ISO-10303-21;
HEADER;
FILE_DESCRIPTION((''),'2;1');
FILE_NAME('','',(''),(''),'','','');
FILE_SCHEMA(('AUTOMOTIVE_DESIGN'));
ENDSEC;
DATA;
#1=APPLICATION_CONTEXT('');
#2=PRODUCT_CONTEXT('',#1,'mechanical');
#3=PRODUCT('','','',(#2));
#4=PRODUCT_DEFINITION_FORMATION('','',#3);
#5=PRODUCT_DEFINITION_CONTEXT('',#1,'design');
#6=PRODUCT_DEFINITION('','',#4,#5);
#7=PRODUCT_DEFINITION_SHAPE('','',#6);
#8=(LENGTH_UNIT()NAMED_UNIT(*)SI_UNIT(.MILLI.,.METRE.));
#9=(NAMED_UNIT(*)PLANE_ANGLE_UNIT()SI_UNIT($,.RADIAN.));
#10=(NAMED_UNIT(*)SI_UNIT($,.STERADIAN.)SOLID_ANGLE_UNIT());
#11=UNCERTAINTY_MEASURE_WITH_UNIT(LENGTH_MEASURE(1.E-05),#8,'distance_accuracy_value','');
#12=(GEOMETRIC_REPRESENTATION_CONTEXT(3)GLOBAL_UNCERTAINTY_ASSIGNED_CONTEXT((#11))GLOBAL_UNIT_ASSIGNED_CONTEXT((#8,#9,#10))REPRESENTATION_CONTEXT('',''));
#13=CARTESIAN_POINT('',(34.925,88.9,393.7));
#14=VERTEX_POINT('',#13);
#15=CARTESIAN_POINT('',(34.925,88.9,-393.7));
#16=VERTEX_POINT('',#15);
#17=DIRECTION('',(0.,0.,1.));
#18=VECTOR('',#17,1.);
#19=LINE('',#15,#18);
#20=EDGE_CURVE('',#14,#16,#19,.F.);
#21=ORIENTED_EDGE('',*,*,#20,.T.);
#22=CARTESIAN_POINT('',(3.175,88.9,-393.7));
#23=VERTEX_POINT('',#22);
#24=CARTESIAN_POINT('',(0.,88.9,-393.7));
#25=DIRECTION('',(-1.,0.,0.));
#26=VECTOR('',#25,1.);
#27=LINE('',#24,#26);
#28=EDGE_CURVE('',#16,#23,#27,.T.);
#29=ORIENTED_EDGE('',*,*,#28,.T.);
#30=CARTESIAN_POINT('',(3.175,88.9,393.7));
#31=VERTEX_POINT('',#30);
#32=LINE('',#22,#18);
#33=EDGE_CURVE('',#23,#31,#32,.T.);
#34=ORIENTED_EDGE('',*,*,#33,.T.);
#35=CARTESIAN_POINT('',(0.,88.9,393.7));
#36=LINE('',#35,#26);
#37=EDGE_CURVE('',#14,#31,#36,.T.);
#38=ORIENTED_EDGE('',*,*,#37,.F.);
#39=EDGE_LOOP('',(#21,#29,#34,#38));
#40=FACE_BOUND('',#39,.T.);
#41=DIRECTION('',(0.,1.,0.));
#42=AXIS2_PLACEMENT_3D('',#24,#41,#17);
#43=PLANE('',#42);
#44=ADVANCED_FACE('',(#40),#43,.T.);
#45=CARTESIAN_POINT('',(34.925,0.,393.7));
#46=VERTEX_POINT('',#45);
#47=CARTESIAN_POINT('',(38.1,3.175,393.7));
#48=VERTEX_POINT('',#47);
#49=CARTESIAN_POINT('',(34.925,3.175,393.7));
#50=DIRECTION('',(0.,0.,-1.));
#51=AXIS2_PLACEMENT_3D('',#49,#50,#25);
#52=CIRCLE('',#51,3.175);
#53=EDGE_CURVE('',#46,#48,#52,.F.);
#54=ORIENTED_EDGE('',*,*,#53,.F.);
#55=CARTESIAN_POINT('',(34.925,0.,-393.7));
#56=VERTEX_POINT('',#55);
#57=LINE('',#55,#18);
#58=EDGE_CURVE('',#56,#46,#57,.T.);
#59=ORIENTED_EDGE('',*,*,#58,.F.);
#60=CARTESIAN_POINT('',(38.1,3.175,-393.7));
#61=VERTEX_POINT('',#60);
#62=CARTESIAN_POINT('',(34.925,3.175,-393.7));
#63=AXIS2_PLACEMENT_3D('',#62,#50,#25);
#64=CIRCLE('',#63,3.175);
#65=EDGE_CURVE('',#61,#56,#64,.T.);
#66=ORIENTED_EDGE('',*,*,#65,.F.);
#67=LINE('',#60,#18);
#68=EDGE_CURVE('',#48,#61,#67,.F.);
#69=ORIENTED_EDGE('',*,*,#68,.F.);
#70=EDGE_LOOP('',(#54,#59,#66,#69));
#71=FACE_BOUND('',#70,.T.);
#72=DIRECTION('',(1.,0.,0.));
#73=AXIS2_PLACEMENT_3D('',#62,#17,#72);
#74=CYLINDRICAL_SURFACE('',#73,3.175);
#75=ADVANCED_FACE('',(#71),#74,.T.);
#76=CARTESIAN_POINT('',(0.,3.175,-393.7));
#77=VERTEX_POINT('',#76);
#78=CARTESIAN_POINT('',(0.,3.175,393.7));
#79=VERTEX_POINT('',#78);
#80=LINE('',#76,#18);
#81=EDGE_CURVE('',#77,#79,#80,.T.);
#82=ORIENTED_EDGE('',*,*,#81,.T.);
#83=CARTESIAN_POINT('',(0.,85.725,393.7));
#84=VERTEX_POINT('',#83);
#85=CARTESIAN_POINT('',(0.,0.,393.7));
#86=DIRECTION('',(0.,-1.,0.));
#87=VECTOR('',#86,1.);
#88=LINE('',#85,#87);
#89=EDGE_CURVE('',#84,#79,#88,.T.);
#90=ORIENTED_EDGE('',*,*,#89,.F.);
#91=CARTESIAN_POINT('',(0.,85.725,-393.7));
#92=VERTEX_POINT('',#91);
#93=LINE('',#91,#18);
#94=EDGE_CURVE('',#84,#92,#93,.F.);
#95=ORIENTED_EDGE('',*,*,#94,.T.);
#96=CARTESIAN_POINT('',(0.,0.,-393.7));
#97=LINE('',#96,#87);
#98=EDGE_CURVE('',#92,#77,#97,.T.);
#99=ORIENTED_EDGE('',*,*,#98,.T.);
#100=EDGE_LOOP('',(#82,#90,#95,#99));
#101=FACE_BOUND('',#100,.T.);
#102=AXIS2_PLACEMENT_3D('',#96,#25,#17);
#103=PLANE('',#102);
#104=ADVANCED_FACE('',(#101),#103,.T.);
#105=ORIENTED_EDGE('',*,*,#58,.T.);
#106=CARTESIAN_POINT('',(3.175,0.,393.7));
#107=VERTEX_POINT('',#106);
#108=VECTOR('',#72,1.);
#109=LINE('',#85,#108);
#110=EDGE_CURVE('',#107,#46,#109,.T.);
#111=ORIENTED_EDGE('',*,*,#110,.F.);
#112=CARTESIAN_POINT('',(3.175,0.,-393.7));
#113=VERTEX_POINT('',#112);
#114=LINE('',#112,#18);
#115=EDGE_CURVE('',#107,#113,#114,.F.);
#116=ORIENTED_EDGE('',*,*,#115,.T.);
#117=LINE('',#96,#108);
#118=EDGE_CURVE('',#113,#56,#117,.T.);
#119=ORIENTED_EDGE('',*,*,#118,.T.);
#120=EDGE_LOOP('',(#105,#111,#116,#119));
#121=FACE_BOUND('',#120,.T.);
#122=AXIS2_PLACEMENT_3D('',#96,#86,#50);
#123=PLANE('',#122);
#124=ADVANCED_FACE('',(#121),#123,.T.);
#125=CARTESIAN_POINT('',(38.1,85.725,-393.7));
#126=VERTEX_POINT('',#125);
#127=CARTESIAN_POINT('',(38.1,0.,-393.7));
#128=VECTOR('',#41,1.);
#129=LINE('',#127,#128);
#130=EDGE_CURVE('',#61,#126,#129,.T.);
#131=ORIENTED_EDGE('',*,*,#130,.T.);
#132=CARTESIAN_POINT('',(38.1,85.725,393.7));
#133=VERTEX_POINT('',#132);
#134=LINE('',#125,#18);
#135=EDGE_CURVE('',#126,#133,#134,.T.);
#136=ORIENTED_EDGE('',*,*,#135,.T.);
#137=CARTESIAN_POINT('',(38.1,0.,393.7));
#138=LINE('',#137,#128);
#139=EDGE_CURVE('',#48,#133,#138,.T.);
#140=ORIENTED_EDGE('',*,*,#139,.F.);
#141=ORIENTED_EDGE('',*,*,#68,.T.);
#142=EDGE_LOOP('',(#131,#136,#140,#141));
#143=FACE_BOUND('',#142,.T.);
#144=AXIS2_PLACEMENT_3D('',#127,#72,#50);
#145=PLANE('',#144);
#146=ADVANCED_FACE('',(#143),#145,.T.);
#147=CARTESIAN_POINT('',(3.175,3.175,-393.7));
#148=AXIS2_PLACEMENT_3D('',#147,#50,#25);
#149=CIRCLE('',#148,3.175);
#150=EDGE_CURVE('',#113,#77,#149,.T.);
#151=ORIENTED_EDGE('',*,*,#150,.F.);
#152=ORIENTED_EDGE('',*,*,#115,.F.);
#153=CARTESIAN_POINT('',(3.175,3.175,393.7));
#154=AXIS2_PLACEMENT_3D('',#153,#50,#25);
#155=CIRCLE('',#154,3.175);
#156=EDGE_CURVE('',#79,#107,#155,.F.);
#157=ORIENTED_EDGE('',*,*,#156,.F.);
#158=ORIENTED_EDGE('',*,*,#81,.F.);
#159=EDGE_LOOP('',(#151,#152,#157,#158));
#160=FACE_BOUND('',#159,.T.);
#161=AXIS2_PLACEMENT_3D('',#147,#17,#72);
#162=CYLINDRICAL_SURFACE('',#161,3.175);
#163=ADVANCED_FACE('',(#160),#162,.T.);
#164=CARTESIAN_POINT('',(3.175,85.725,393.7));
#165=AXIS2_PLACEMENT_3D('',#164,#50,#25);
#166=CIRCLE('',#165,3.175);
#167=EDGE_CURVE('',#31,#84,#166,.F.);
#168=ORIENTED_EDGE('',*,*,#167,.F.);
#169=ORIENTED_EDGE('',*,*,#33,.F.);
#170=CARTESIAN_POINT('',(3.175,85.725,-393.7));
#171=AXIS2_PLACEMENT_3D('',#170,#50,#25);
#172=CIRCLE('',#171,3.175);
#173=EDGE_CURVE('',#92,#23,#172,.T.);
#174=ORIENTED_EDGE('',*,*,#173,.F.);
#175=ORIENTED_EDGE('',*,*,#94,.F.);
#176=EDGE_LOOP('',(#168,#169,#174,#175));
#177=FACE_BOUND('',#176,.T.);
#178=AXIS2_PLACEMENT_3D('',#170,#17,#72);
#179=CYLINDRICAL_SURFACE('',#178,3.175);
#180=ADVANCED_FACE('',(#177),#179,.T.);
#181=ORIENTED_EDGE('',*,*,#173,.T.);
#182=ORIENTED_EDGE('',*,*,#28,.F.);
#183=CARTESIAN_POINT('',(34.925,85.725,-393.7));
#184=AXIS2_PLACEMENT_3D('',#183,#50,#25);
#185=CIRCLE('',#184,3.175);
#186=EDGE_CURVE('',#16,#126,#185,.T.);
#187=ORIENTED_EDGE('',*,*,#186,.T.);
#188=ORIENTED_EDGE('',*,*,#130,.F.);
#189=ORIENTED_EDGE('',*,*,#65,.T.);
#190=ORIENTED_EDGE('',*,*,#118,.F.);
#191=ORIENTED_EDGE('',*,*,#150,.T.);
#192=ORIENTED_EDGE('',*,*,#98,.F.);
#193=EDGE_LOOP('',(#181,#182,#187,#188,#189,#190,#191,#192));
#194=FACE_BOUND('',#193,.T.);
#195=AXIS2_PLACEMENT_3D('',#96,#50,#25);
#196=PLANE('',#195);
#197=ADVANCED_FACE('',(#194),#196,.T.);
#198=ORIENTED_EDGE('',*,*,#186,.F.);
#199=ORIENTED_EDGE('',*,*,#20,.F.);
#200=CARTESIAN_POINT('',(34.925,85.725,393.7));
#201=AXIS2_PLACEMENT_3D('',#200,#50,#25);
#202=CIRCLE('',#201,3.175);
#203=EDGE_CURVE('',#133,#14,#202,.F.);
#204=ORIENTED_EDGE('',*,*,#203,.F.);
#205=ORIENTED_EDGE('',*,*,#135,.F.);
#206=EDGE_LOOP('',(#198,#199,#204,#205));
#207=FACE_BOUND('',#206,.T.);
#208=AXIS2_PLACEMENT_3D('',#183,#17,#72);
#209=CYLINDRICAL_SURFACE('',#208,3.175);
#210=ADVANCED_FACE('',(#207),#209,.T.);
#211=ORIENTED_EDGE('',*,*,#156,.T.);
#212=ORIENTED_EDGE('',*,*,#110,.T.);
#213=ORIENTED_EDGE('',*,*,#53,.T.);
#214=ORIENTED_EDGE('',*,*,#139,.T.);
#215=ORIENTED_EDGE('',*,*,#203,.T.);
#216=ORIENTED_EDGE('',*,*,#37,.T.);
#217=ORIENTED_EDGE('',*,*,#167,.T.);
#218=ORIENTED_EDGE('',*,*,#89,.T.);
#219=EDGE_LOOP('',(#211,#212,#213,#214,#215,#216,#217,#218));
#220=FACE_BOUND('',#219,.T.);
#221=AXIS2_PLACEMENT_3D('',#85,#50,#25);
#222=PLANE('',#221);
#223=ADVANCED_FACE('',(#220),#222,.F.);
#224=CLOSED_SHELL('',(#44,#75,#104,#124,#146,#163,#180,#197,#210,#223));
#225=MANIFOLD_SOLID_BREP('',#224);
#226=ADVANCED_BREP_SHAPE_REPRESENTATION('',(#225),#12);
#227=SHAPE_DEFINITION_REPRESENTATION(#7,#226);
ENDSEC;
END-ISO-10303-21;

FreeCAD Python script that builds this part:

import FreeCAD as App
import Part
import Sketcher

V = App.Vector
Q = App.Units.Quantity


def edges_at(feature, points):
    """Names of the edges that pass closest to the given points."""
    edges = feature.Shape.Edges
    near = lambda p: min(range(len(edges)), key=lambda i: edges[i].distToShape(Part.Vertex(*p))[0])
    return sorted({f"Edge{near(p) + 1}" for p in points})


def add_polygon(sketch, points):
    """Adds a closed chain of lines whose ends are joined by coincident constraints."""
    first, n = sketch.GeometryCount, len(points)
    for a, b in zip(points, points[1:] + points[:1]):
        sketch.addGeometry(Part.LineSegment(App.Vector(*a, 0), App.Vector(*b, 0)), False)
    for i in range(n):
        sketch.addConstraint(Sketcher.Constraint("Coincident", first + i, 2, first + (i + 1) % n, 1))

doc = App.newDocument("Part")
body = doc.addObject("PartDesign::Body", "Body")

# Sketch on XY plane
sketch1 = doc.addObject("Sketcher::SketchObject", "Sketch")
body.addObject(sketch1)
sketch1.AttachmentSupport = (doc.XY_Plane, [""])
sketch1.MapMode = "FlatFace"
add_polygon(sketch1, [(0, 88.9), (0, 0), (38.1, 0), (38.1, 88.9)])  # lines 0-3
sketch1.addConstraint([
    Sketcher.Constraint("Vertical", 0),
    Sketcher.Constraint("Horizontal", 1),
    Sketcher.Constraint("Vertical", 2),
    Sketcher.Constraint("Horizontal", 3),
    Sketcher.Constraint("Coincident", 0, 2, -1, 1),
    Sketcher.Constraint("DistanceX", 1, 1, 1, 2, Q("1.5 in")),
    Sketcher.Constraint("DistanceY", 0, 2, 0, 1, Q("3.5 in")),
])
pad1 = doc.addObject("PartDesign::Pad", "Pad")
body.addObject(pad1)
pad1.Profile = sketch1
pad1.Length = Q("31 in")
pad1.Midplane = True
doc.recompute()

fillet = doc.addObject("PartDesign::Fillet", "Fillet")
body.addObject(fillet)
fillet.Base = (pad1, edges_at(pad1, [
    (0, 88.9, 0),
    (38.1, 88.9, 0),
    (38.1, 0, 0),
    (0, 0, 0),
]))
fillet.Radius = Q("0.125 in")

doc.recompute()
